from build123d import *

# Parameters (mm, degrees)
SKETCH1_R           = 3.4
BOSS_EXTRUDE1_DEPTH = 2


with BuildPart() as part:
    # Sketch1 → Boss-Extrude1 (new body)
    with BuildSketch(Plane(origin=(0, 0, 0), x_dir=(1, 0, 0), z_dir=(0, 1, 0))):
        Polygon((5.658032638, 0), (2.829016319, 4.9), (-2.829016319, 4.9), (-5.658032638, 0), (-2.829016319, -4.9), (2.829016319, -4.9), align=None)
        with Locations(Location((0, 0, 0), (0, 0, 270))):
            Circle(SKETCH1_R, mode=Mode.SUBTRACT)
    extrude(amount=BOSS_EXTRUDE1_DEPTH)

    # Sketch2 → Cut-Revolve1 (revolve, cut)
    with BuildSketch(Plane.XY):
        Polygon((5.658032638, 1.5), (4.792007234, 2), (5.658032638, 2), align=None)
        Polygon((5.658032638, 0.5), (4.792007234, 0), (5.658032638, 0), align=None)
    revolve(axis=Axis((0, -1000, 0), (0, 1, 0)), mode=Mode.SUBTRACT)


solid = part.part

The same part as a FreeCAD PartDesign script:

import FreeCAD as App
import Part
import Sketcher
Q = App.Units.Quantity

doc = App.newDocument("Part")
params = doc.addObject("Spreadsheet::Sheet", "Params")
for row, (alias, value) in enumerate([
    ("sketch1_diameter", "6.8 mm"),
    ("pad1_length", "2 mm"),
    ("sketch2_length", "1 mm"),
    ("groove_angle", "360 deg"),
], start=1):
    params.set(f"A{row}", alias)
    params.set(f"B{row}", "=" + value)
    params.setAlias(f"B{row}", alias)

body = doc.addObject("PartDesign::Body", "Body")

# Sketch on XZ plane
sketch1 = body.newObject("Sketcher::SketchObject", "Sketch")
sketch1.AttachmentSupport = (doc.getObject("XZ_Plane"), [""])
sketch1.MapMode = "FlatFace"
sketch1.addGeometry([
    Part.LineSegment(App.Vector(5.658033, 0, 0), App.Vector(2.829016, -4.9, 0)),  # 0
    Part.LineSegment(App.Vector(2.829016, -4.9, 0), App.Vector(-2.829016, -4.9, 0)),  # 1
    Part.LineSegment(App.Vector(-2.829016, -4.9, 0), App.Vector(-5.658033, 0, 0)),  # 2
    Part.LineSegment(App.Vector(-5.658033, 0, 0), App.Vector(-2.829016, 4.9, 0)),  # 3
    Part.LineSegment(App.Vector(-2.829016, 4.9, 0), App.Vector(2.829016, 4.9, 0)),  # 4
    Part.LineSegment(App.Vector(2.829016, 4.9, 0), App.Vector(5.658033, 0, 0)),  # 5
    Part.Circle(App.Vector(0, 0, 0), App.Vector(0, 0, 1), 3.4),  # 6
], False)
sketch1.addConstraint([
    Sketcher.Constraint("Coincident", 0, 2, 1, 1),
    Sketcher.Constraint("Coincident", 1, 2, 2, 1),
    Sketcher.Constraint("Coincident", 2, 2, 3, 1),
    Sketcher.Constraint("Coincident", 3, 2, 4, 1),
    Sketcher.Constraint("Coincident", 4, 2, 5, 1),
    Sketcher.Constraint("Coincident", 5, 2, 0, 1),
    Sketcher.Constraint("Horizontal", 1),
    Sketcher.Constraint("Horizontal", 4),
    Sketcher.Constraint("Coincident", 6, 3, -1, 1),
    Sketcher.Constraint("Symmetric", 0, 2, 3, 2, -1, 1),
    Sketcher.Constraint("Symmetric", 2, 2, 5, 2, -1, 1),
    Sketcher.Constraint("PointOnObject", 2, 2, -1),
    Sketcher.Constraint("Parallel", 2, 5),
    Sketcher.Constraint("Vertical", 1, 2, 3, 2),
    Sketcher.Constraint("Diameter", 6, Q("6.8 mm")),
    Sketcher.Constraint("Angle", 0, Q("-120 deg")),
    Sketcher.Constraint("DistanceY", 0, 2, -1, 1, Q("4.9 mm")),
    Sketcher.Constraint("DistanceX", 1, 2, 1, 1, Q("5.658033 mm")),
])
sketch1.setExpression("Constraints[14]", "Params.sketch1_diameter")
pad1 = body.newObject("PartDesign::Pad", "Pad")
pad1.Profile = sketch1
pad1.setExpression("Length", "Params.pad1_length")
pad1.Reversed = True

# Sketch on XY plane
sketch2 = body.newObject("Sketcher::SketchObject", "Sketch001")
sketch2.AttachmentSupport = (doc.getObject("XY_Plane"), [""])
sketch2.MapMode = "FlatFace"
sketch2.addGeometry([
    Part.LineSegment(App.Vector(4.792007, 2, 0), App.Vector(5.658033, 1.5, 0)),  # 0
    Part.LineSegment(App.Vector(5.658033, 1.5, 0), App.Vector(5.658033, 2, 0)),  # 1
    Part.LineSegment(App.Vector(5.658033, 2, 0), App.Vector(4.792007, 2, 0)),  # 2
    Part.LineSegment(App.Vector(5.658033, 0.5, 0), App.Vector(4.792007, 0, 0)),  # 3
    Part.LineSegment(App.Vector(4.792007, 0, 0), App.Vector(5.658033, 0, 0)),  # 4
    Part.LineSegment(App.Vector(5.658033, 0, 0), App.Vector(5.658033, 0.5, 0)),  # 5
], False)
sketch2.addConstraint([
    Sketcher.Constraint("Coincident", 0, 2, 1, 1),
    Sketcher.Constraint("Coincident", 1, 2, 2, 1),
    Sketcher.Constraint("Coincident", 2, 2, 0, 1),
    Sketcher.Constraint("Coincident", 3, 2, 4, 1),
    Sketcher.Constraint("Coincident", 4, 2, 5, 1),
    Sketcher.Constraint("Coincident", 5, 2, 3, 1),
    Sketcher.Constraint("Vertical", 1),
    Sketcher.Constraint("Horizontal", 2),
    Sketcher.Constraint("Horizontal", 4),
    Sketcher.Constraint("Vertical", 5),
    Sketcher.Constraint("PointOnObject", 3, 2, -1),
    Sketcher.Constraint("Vertical", 2, 2, 3, 2),
    Sketcher.Constraint("Vertical", 1, 2, 4, 2),
    Sketcher.Constraint("Equal", 1, 5),
    Sketcher.Constraint("Angle", 0, Q("-30 deg")),
    Sketcher.Constraint("Distance", 0, Q("1 mm")),
    Sketcher.Constraint("DistanceY", -1, 1, 1, 2, Q("2 mm")),
    Sketcher.Constraint("DistanceX", -1, 1, 0, 2, Q("5.658033 mm")),
])
sketch2.setExpression("Constraints[15]", "Params.sketch2_length")
groove = body.newObject("PartDesign::Groove", "Groove")
groove.Profile = sketch2
groove.ReferenceAxis = (sketch2, ["V_Axis"])
groove.setExpression("Angle", "Params.groove_angle")

doc.recompute()
